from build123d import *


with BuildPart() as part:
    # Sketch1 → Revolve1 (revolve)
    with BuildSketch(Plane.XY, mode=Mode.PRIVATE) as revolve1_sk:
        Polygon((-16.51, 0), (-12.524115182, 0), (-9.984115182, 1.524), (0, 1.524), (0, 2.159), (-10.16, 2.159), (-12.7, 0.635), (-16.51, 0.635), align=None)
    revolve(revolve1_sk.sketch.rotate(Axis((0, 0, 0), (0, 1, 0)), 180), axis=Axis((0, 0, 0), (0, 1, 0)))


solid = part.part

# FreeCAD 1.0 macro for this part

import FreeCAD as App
import Part
import Sketcher

V = App.Vector
Q = App.Units.Quantity


def add_polygon(sketch, points):
    """Adds a closed chain of lines whose ends are joined by coincident constraints."""
    first, n = sketch.GeometryCount, len(points)
    for a, b in zip(points, points[1:] + points[:1]):
        sketch.addGeometry(Part.LineSegment(App.Vector(*a, 0), App.Vector(*b, 0)), False)
    for i in range(n):
        sketch.addConstraint(Sketcher.Constraint("Coincident", first + i, 2, first + (i + 1) % n, 1))

doc = App.newDocument("Part")
body = doc.addObject("PartDesign::Body", "Body")

# Sketch on XY plane
sketch1 = body.newObject("Sketcher::SketchObject", "Sketch")
sketch1.AttachmentSupport = (doc.getObject("XY_Plane"), [""])
sketch1.MapMode = "FlatFace"
add_polygon(sketch1, [(-16.5, 0), (-12.5, 0), (-10, 1.5), (0, 1.5), (0, 2.2), (-10.2, 2.2), (-12.7, 0.6), (-16.5, 0.6)])  # lines 0-7
sketch1.addConstraint([
    Sketcher.Constraint("Horizontal", 0),
    Sketcher.Constraint("Horizontal", 2),
    Sketcher.Constraint("Vertical", 3),
    Sketcher.Constraint("Horizontal", 4),
    Sketcher.Constraint("Horizontal", 6),
    Sketcher.Constraint("Vertical", 7),
    Sketcher.Constraint("PointOnObject", 0, 2, -1),
    Sketcher.Constraint("PointOnObject", 2, 2, -2),
    Sketcher.Constraint("Parallel", 1, 5),
    Sketcher.Constraint("Equal", 3, 7),
    Sketcher.Constraint("DistanceX", 4, 2, 4, 1, Q("0.4 in")),
    Sketcher.Constraint("DistanceX", 6, 2, 6, 1, Q("0.15 in")),
    Sketcher.Constraint("DistanceX", 5, 2, -1, 1, Q("0.5 in")),
    Sketcher.Constraint("DistanceY", 3, 1, 3, 2, Q("0.025 in")),
    Sketcher.Constraint("DistanceY", -1, 1, 1, 2, Q("0.06 in")),
    Sketcher.Constraint("DistanceX", 0, 1, 0, 2, 3.985885),
])
revolution = body.newObject("PartDesign::Revolution", "Revolution")
revolution.Profile = sketch1
revolution.ReferenceAxis = (sketch1, ["V_Axis"])
revolution.Angle = 360

doc.recompute()
